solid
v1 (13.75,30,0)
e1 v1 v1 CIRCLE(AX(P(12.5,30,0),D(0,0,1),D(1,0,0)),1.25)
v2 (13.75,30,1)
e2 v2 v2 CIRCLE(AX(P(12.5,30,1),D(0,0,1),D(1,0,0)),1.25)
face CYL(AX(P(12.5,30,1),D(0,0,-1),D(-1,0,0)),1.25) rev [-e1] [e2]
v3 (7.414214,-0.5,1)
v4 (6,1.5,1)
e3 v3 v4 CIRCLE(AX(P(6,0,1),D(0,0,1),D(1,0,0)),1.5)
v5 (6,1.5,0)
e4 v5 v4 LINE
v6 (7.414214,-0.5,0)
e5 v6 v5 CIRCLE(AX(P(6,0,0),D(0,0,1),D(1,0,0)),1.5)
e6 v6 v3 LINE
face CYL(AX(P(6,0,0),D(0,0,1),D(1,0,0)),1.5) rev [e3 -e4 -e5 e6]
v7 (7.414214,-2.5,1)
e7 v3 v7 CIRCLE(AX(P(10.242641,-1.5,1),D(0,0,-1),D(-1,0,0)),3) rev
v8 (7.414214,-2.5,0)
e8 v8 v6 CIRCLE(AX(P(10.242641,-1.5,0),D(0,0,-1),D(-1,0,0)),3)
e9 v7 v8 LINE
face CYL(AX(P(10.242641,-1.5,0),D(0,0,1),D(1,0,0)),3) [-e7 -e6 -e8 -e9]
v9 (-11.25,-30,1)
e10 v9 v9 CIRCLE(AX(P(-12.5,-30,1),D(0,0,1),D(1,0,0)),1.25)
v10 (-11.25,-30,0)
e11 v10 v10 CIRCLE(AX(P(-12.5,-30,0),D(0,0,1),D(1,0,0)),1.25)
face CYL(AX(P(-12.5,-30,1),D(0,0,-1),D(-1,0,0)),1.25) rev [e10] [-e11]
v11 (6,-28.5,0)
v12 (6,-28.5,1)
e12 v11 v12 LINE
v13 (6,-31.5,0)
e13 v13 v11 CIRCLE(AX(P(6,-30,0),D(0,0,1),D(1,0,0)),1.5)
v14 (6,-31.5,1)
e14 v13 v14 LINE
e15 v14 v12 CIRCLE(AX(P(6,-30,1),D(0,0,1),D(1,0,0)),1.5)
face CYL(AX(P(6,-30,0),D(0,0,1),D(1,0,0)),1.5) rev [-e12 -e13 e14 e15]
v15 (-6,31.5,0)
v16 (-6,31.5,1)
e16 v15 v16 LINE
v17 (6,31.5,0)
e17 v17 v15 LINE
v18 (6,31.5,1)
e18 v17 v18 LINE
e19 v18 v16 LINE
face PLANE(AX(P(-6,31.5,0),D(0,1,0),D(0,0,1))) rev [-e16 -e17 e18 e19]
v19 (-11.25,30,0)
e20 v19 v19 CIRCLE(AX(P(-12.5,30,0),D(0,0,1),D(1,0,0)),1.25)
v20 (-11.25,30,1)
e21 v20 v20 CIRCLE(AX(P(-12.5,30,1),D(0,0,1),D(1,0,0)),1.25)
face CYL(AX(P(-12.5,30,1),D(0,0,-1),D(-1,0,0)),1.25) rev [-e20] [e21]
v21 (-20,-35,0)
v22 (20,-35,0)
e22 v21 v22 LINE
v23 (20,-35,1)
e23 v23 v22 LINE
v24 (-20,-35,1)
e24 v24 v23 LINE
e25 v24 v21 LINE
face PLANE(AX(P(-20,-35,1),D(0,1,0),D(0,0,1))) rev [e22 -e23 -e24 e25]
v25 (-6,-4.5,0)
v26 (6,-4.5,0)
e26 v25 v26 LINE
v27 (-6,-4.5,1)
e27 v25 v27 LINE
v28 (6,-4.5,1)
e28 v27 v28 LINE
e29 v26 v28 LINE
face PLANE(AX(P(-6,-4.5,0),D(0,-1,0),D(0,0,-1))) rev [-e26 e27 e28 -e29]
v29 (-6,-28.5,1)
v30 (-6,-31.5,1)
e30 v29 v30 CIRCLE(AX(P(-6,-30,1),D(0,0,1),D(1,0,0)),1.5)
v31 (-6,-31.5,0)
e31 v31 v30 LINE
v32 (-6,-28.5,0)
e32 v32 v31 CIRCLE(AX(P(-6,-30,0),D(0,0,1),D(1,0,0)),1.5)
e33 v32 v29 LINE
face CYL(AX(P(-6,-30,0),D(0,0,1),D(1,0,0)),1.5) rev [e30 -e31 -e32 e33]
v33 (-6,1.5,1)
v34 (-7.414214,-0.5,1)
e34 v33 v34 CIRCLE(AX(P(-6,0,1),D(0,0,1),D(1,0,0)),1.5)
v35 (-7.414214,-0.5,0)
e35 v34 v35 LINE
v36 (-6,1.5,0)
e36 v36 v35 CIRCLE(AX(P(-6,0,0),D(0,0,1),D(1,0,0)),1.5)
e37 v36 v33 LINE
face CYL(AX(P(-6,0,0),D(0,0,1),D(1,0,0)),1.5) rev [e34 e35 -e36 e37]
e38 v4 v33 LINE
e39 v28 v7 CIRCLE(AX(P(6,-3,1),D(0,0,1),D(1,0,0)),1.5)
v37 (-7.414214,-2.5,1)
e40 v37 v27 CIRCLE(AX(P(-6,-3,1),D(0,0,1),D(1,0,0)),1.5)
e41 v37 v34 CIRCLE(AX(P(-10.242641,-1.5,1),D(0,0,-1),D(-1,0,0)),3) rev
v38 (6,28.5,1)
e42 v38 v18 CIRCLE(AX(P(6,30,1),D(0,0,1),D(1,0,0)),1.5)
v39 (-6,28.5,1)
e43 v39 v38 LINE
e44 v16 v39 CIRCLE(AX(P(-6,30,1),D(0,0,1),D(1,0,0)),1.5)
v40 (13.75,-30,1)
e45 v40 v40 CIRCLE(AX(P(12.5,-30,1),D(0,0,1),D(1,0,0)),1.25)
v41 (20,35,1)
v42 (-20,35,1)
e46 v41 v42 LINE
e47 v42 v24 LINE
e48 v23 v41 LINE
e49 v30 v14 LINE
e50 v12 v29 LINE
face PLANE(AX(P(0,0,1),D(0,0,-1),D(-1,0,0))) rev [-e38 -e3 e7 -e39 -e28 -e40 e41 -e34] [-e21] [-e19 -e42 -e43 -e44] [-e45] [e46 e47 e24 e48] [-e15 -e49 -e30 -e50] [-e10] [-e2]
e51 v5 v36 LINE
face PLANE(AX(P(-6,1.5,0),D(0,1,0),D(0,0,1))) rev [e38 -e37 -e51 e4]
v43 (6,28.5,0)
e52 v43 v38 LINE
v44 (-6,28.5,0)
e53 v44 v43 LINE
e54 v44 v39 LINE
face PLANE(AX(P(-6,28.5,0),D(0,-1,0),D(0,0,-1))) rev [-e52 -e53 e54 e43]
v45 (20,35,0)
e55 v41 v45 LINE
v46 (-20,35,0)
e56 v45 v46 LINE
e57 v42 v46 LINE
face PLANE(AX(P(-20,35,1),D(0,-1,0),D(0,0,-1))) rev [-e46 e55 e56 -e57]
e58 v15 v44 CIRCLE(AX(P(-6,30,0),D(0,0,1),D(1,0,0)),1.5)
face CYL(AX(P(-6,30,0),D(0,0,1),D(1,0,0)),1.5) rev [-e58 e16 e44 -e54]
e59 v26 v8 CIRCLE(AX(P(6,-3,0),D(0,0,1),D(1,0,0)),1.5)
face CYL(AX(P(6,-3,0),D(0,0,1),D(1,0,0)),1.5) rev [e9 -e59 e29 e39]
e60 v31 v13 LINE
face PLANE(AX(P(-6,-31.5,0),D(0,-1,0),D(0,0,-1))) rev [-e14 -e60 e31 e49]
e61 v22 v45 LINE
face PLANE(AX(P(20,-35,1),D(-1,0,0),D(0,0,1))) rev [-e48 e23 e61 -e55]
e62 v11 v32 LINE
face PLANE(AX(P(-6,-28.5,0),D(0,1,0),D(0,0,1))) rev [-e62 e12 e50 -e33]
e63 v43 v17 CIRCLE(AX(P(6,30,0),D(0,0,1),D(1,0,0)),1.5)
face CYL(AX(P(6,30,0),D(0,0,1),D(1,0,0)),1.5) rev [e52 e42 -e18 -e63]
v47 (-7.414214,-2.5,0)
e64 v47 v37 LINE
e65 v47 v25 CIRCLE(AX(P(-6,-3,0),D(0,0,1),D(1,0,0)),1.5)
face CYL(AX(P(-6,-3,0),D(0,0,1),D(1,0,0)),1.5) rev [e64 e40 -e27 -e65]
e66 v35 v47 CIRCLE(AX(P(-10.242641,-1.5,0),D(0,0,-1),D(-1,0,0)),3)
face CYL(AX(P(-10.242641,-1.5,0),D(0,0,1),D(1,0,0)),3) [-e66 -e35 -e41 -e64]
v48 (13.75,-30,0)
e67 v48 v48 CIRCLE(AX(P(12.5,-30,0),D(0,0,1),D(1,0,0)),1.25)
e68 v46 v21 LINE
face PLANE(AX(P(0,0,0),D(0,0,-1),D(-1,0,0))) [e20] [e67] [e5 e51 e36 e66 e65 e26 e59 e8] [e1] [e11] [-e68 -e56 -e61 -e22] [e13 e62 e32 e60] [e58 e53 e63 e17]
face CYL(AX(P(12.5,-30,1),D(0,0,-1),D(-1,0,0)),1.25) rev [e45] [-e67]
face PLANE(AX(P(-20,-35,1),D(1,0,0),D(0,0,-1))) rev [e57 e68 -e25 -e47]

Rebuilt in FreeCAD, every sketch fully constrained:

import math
import FreeCAD as App
import Part
import Sketcher

V = App.Vector
Q = App.Units.Quantity


def edges_at(feature, points):
    """Names of the edges that pass closest to the given points."""
    edges = feature.Shape.Edges
    near = lambda p: min(range(len(edges)), key=lambda i: edges[i].distToShape(Part.Vertex(*p))[0])
    return sorted({f"Edge{near(p) + 1}" for p in points})


def add_polygon(sketch, points):
    """Adds a closed chain of lines whose ends are joined by coincident constraints."""
    first, n = sketch.GeometryCount, len(points)
    for a, b in zip(points, points[1:] + points[:1]):
        sketch.addGeometry(Part.LineSegment(App.Vector(*a, 0), App.Vector(*b, 0)), False)
    for i in range(n):
        sketch.addConstraint(Sketcher.Constraint("Coincident", first + i, 2, first + (i + 1) % n, 1))

doc = App.newDocument("Part")
body = doc.addObject("PartDesign::Body", "Body")

# Sketch on XY plane
sketch1 = body.newObject("Sketcher::SketchObject", "Sketch")
sketch1.AttachmentSupport = (doc.getObject("XY_Plane"), [""])
sketch1.MapMode = "FlatFace"
add_polygon(sketch1, [(-20, 35), (-20, -35), (20, -35), (20, 35)])  # lines 0-3
sketch1.addGeometry(Part.Circle(V(-12.5, -30, 0), V(0, 0, 1), 1.2), False)  # 4
sketch1.addGeometry(Part.Circle(V(12.5, -30, 0), V(0, 0, 1), 1.2), False)  # 5
sketch1.addGeometry(Part.Circle(V(-12.5, 30, 0), V(0, 0, 1), 1.2), False)  # 6
sketch1.addGeometry(Part.Circle(V(12.5, 30, 0), V(0, 0, 1), 1.2), False)  # 7
sketch1.addConstraint(Sketcher.Constraint("Vertical", 0))
sketch1.addConstraint(Sketcher.Constraint("Horizontal", 1))
sketch1.addConstraint(Sketcher.Constraint("Vertical", 2))
sketch1.addConstraint(Sketcher.Constraint("Horizontal", 3))
sketch1.addConstraint(Sketcher.Constraint("Equal", 4, 5))
sketch1.addConstraint(Sketcher.Constraint("Equal", 5, 6))
sketch1.addConstraint(Sketcher.Constraint("Equal", 6, 7))
sketch1.addConstraint(Sketcher.Constraint("Symmetric", 5, 3, 6, 3, -1, 1))
sketch1.addConstraint(Sketcher.Constraint("Symmetric", 4, 3, 7, 3, -1, 1))
sketch1.addConstraint(Sketcher.Constraint("Symmetric", 0, 2, 2, 2, -1, 1))
sketch1.addConstraint(Sketcher.Constraint("Symmetric", 4, 3, 5, 3, -2))
sketch1.addConstraint(Sketcher.Constraint("Diameter", 4, Q("2.5 mm")))
sketch1.addConstraint(Sketcher.Constraint("DistanceX", 1, 1, 1, 2, Q("40 mm")))
sketch1.addConstraint(Sketcher.Constraint("DistanceY", 0, 2, 0, 1, Q("70 mm")))
sketch1.addConstraint(Sketcher.Constraint("DistanceY", 4, 3, -1, 1, Q("30 mm")))
sketch1.addConstraint(Sketcher.Constraint("DistanceX", 4, 3, 5, 3, Q("25 mm")))
pad1 = body.newObject("PartDesign::Pad", "Pad")
pad1.Profile = sketch1
pad1.Length = 1

# Sketch on XY plane
sketch2 = body.newObject("Sketcher::SketchObject", "Sketch001")
sketch2.AttachmentSupport = (doc.getObject("XY_Plane"), [""])
sketch2.MapMode = "FlatFace"
sketch2.AttachmentOffset = App.Placement(V(0, 0, 1), App.Rotation())
sketch2.addGeometry(Part.LineSegment(V(6, 31.5, 0), V(-6, 31.5, 0)), False)
sketch2.addGeometry(Part.ArcOfCircle(Part.Circle(V(-6, 30, 0), V(0, 0, 1), 1.5), math.radians(90), math.radians(270)), False)
sketch2.addGeometry(Part.LineSegment(V(-6, 28.5, 0), V(6, 28.5, 0)), False)
sketch2.addGeometry(Part.ArcOfCircle(Part.Circle(V(6, 30, 0), V(0, 0, 1), 1.5), math.radians(-90), math.radians(90)), False)
sketch2.addGeometry(Part.LineSegment(V(6, 1.5, 0), V(-6, 1.5, 0)), False)
sketch2.addGeometry(Part.ArcOfCircle(Part.Circle(V(-6, 0, 0), V(0, 0, 1), 1.5), math.radians(90), math.radians(270)), False)
sketch2.addGeometry(Part.ArcOfCircle(Part.Circle(V(-6, -3, 0), V(0, 0, 1), 1.5), math.radians(90), math.radians(270)), False)
sketch2.addGeometry(Part.LineSegment(V(-6, -4.5, 0), V(6, -4.5, 0)), False)
sketch2.addGeometry(Part.ArcOfCircle(Part.Circle(V(6, -3, 0), V(0, 0, 1), 1.5), math.radians(-90), math.radians(90)), False)
sketch2.addGeometry(Part.ArcOfCircle(Part.Circle(V(6, 0, 0), V(0, 0, 1), 1.5), math.radians(-90), math.radians(90)), False)
sketch2.addGeometry(Part.LineSegment(V(6, -28.5, 0), V(-6, -28.5, 0)), False)
sketch2.addGeometry(Part.ArcOfCircle(Part.Circle(V(-6, -30, 0), V(0, 0, 1), 1.5), math.radians(90), math.radians(270)), False)
sketch2.addGeometry(Part.LineSegment(V(-6, -31.5, 0), V(6, -31.5, 0)), False)
sketch2.addGeometry(Part.ArcOfCircle(Part.Circle(V(6, -30, 0), V(0, 0, 1), 1.5), math.radians(-90), math.radians(90)), False)
sketch2.addConstraint(Sketcher.Constraint("Tangent", 0, 2, 1, 1))
sketch2.addConstraint(Sketcher.Constraint("Tangent", 1, 2, 2, 1))
sketch2.addConstraint(Sketcher.Constraint("Tangent", 2, 2, 3, 1))
sketch2.addConstraint(Sketcher.Constraint("Tangent", 3, 2, 0, 1))
sketch2.addConstraint(Sketcher.Constraint("Tangent", 4, 2, 5, 1))
sketch2.addConstraint(Sketcher.Constraint("Tangent", 5, 2, 6, 1))
sketch2.addConstraint(Sketcher.Constraint("Tangent", 6, 2, 7, 1))
sketch2.addConstraint(Sketcher.Constraint("Tangent", 7, 2, 8, 1))
sketch2.addConstraint(Sketcher.Constraint("Tangent", 8, 2, 9, 1))
sketch2.addConstraint(Sketcher.Constraint("Tangent", 9, 2, 4, 1))
sketch2.addConstraint(Sketcher.Constraint("Tangent", 10, 2, 11, 1))
sketch2.addConstraint(Sketcher.Constraint("Tangent", 11, 2, 12, 1))
sketch2.addConstraint(Sketcher.Constraint("Tangent", 12, 2, 13, 1))
sketch2.addConstraint(Sketcher.Constraint("Tangent", 13, 2, 10, 1))
sketch2.addConstraint(Sketcher.Constraint("Horizontal", 0))
sketch2.addConstraint(Sketcher.Constraint("Horizontal", 2))
sketch2.addConstraint(Sketcher.Constraint("Horizontal", 4))
sketch2.addConstraint(Sketcher.Constraint("Horizontal", 7))
sketch2.addConstraint(Sketcher.Constraint("Horizontal", 10))
sketch2.addConstraint(Sketcher.Constraint("Horizontal", 12))
sketch2.addConstraint(Sketcher.Constraint("Equal", 3, 5))
sketch2.addConstraint(Sketcher.Constraint("Equal", 5, 6))
sketch2.addConstraint(Sketcher.Constraint("Equal", 6, 8))
sketch2.addConstraint(Sketcher.Constraint("Equal", 9, 11))
sketch2.addConstraint(Sketcher.Constraint("Symmetric", 5, 3, 9, 3, -1, 1))
sketch2.addConstraint(Sketcher.Constraint("Symmetric", 3, 3, 11, 3, -1, 1))
sketch2.addConstraint(Sketcher.Constraint("Vertical", 1, 3, 5, 3))
sketch2.addConstraint(Sketcher.Constraint("Vertical", 5, 3, 6, 3))
sketch2.addConstraint(Sketcher.Constraint("Vertical", 3, 3, 8, 3))
sketch2.addConstraint(Sketcher.Constraint("Vertical", 8, 3, 9, 3))
sketch2.addConstraint(Sketcher.Constraint("Vertical", 9, 3, 13, 3))
sketch2.addConstraint(Sketcher.Constraint("Radius", 1, Q("1.5 mm")))
sketch2.addConstraint(Sketcher.Constraint("DistanceX", 0, 2, 0, 1, Q("12 mm")))
sketch2.addConstraint(Sketcher.Constraint("DistanceY", -1, 1, 1, 3, Q("30 mm")))
pocket1 = body.newObject("PartDesign::Pocket", "Pocket")
pocket1.Profile = sketch2
pocket1.Type = "ThroughAll"
doc.recompute()

fillet = body.newObject("PartDesign::Fillet", "Fillet")
fillet.Base = (pocket1, edges_at(pocket1, [(-6, -1.5, 0.5), (6, -1.5, 0.5)]))
fillet.Radius = 3

doc.recompute()
